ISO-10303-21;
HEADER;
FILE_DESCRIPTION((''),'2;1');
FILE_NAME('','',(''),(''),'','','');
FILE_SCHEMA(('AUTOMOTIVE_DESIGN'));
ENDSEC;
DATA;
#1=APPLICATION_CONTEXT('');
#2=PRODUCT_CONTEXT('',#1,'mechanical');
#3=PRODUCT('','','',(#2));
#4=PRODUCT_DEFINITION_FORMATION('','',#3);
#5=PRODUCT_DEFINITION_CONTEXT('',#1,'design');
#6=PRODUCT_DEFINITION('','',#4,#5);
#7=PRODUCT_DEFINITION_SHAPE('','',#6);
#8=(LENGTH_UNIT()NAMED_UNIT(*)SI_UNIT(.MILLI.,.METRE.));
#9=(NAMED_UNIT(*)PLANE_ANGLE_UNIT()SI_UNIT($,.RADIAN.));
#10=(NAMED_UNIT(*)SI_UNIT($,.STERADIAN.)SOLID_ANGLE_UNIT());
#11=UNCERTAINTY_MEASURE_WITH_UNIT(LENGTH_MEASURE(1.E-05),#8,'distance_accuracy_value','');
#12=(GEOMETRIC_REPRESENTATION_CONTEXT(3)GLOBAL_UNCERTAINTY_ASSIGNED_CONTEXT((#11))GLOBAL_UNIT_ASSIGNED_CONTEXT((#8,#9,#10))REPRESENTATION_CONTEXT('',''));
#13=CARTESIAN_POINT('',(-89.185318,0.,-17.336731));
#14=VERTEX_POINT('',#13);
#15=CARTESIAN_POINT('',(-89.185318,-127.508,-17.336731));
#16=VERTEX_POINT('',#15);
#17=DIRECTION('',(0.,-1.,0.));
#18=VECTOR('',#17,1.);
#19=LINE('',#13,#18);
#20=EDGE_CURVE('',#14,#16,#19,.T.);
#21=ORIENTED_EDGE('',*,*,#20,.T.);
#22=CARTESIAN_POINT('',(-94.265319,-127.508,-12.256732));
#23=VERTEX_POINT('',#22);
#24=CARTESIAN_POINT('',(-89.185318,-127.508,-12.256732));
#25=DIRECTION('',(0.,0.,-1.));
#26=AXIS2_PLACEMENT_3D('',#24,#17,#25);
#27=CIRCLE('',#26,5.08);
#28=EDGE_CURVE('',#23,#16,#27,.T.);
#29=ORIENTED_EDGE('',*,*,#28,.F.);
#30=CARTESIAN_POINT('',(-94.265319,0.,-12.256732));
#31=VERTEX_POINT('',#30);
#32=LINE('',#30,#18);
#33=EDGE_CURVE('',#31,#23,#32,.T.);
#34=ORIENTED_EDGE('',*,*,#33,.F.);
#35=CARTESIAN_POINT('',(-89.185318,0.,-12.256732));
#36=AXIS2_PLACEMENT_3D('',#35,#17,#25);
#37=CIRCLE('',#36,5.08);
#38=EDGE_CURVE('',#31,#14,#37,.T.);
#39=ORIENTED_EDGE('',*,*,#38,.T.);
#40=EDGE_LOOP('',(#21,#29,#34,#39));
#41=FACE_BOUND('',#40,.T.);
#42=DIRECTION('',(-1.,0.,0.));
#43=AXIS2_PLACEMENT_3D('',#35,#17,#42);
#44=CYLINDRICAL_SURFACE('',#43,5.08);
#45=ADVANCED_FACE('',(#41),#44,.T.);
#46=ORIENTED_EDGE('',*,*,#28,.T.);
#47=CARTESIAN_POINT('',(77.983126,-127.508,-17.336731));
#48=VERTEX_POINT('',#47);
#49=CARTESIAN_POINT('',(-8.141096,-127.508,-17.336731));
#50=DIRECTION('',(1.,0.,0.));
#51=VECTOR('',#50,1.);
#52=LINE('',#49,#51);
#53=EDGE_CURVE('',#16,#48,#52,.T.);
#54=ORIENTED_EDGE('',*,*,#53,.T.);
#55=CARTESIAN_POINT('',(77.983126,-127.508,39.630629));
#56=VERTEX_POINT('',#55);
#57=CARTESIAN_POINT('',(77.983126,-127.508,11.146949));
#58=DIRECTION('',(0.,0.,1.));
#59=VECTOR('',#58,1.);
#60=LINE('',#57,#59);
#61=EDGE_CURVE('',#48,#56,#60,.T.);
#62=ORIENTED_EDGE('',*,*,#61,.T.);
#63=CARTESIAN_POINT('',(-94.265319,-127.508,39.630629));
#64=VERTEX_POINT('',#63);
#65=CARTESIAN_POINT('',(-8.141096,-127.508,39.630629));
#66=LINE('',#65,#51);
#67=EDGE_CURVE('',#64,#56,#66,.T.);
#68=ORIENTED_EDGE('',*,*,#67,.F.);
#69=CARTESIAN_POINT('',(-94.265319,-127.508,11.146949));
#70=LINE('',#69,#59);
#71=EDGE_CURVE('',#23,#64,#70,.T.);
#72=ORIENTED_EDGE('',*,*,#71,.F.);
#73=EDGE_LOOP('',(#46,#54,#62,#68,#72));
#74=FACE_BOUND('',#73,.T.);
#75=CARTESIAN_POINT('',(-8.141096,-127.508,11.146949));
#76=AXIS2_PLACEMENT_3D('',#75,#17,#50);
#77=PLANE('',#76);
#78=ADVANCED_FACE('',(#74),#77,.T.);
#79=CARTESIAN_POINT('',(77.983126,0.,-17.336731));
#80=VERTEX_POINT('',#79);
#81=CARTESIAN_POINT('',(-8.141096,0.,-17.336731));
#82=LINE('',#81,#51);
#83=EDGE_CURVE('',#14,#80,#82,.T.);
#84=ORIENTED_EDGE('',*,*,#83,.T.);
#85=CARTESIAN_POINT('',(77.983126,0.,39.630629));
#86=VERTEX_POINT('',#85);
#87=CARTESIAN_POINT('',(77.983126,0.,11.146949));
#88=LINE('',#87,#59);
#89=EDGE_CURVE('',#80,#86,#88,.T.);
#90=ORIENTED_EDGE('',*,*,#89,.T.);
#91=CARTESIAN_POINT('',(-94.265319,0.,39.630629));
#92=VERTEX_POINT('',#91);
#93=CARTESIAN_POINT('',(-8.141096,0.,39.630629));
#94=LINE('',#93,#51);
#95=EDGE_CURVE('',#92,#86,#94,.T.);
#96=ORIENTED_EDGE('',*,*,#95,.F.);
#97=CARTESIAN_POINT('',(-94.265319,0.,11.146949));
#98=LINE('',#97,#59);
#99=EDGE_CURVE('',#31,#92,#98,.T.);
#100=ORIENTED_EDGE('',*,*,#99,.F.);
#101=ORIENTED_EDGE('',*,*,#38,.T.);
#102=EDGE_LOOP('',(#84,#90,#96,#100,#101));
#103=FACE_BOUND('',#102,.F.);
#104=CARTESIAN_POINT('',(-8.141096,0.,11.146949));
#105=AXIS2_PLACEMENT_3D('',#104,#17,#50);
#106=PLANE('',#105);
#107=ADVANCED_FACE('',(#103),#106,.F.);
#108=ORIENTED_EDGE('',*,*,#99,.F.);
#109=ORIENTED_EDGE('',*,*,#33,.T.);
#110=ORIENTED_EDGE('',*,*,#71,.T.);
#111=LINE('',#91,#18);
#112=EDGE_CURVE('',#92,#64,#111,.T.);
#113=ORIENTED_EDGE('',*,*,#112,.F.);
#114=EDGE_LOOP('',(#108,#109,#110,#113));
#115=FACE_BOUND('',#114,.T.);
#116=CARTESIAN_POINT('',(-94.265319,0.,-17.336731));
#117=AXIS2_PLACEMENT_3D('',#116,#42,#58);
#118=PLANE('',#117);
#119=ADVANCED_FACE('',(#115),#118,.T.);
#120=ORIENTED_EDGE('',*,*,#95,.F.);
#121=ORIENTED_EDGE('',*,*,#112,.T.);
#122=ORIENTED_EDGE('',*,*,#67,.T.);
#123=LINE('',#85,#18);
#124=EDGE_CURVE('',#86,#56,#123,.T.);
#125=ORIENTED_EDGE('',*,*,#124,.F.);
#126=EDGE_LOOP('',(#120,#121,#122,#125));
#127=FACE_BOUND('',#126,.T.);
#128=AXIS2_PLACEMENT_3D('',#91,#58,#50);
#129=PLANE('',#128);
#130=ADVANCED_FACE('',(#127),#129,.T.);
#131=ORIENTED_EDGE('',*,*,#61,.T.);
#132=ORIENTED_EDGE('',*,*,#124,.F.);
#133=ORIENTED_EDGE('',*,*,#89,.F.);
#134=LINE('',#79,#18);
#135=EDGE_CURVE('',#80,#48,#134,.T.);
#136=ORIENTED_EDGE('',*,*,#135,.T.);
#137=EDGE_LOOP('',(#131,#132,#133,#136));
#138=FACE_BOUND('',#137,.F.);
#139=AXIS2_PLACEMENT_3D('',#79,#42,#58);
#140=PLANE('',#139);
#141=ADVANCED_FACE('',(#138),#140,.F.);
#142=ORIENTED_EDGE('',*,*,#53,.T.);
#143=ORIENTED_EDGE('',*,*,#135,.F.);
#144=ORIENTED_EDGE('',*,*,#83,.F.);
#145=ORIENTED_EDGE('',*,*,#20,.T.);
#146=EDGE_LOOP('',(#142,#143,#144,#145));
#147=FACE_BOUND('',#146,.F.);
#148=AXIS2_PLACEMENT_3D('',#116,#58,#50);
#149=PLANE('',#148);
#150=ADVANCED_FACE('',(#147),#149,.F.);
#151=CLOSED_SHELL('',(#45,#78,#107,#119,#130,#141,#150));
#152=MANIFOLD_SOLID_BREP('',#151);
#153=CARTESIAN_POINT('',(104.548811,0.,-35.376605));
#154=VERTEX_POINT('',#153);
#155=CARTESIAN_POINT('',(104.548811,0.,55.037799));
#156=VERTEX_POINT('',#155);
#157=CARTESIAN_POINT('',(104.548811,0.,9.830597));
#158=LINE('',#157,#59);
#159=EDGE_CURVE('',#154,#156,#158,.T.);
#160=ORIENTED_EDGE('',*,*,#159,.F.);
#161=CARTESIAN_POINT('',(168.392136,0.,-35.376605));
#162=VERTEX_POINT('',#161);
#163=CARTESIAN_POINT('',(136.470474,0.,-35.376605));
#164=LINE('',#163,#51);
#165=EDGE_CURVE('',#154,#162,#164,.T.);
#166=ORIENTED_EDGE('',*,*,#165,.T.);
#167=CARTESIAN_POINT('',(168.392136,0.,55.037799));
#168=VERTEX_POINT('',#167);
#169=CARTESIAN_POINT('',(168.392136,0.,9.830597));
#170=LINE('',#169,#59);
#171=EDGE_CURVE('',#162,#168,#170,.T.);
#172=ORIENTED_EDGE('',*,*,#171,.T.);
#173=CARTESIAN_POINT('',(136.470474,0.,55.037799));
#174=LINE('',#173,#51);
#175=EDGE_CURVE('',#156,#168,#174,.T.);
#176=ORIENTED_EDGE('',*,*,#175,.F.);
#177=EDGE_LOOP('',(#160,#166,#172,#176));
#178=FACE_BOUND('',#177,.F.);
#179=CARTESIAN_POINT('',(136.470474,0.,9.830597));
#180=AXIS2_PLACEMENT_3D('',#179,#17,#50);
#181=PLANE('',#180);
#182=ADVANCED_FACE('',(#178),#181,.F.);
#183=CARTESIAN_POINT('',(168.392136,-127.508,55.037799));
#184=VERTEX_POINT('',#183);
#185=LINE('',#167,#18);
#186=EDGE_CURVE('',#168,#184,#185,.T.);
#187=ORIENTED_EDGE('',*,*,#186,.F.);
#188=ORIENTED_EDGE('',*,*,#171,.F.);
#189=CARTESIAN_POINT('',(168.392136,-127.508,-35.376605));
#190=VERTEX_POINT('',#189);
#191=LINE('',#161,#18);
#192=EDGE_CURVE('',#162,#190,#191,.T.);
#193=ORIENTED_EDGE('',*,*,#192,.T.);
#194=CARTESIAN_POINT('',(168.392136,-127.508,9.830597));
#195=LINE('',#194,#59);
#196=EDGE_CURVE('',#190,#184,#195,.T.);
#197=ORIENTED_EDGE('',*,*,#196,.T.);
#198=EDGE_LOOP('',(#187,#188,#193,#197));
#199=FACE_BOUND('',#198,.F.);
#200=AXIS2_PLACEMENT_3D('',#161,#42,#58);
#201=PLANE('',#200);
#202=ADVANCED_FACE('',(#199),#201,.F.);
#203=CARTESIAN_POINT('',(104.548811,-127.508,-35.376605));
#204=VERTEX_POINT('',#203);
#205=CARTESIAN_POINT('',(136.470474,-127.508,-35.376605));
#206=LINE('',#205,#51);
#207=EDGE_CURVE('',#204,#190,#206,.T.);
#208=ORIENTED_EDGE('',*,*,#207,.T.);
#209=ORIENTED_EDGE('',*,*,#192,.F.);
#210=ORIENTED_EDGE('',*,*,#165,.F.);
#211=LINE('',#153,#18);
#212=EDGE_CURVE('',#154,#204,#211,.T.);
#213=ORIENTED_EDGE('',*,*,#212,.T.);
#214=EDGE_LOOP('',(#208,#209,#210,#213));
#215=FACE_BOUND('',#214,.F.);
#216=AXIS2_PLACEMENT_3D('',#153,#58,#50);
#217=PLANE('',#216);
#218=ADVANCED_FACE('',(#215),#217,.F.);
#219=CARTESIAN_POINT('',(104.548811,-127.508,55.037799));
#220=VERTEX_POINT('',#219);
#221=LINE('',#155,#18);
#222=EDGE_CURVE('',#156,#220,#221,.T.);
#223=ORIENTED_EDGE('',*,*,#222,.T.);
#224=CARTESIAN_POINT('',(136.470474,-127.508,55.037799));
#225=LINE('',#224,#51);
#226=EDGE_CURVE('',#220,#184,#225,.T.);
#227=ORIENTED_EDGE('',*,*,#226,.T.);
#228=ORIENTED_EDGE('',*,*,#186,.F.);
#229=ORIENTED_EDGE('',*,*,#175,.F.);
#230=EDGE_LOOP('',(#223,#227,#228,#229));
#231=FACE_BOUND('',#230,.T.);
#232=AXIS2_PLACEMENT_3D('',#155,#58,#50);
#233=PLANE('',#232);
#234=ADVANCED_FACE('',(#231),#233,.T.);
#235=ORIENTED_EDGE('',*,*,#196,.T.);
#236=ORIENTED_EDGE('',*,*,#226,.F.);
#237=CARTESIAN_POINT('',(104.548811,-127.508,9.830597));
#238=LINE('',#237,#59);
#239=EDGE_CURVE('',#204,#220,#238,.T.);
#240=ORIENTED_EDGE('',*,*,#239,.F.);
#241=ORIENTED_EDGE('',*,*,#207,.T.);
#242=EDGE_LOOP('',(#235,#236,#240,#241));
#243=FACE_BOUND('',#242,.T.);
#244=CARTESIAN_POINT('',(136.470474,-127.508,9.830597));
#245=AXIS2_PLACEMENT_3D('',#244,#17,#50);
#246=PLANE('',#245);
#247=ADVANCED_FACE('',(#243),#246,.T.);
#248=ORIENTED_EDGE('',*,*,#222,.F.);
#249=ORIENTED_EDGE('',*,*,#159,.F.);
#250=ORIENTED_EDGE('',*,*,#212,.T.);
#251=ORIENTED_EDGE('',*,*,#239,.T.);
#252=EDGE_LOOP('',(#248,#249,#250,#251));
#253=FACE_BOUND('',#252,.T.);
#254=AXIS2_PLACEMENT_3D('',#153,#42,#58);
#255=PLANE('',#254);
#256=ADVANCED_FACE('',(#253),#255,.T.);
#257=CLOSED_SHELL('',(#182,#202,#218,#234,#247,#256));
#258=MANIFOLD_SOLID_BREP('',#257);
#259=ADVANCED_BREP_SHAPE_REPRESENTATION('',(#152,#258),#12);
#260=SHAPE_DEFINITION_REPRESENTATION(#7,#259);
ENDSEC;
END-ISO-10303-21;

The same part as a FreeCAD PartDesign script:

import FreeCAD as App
import Part
import Sketcher
from FreeCAD import Vector
Q = App.Units.Quantity


def edges_at(feature, points):
    """Names of the edges that pass closest to the given points."""
    edges = feature.Shape.Edges
    near = lambda p: min(range(len(edges)), key=lambda i: edges[i].distToShape(Part.Vertex(*p))[0])
    return sorted({f"Edge{near(p) + 1}" for p in points})

doc = App.newDocument("Part")
body = doc.addObject("PartDesign::Body", "Body")
body.AllowCompound = True

# Sketch on XZ plane
sketch1 = body.newObject("Sketcher::SketchObject", "Sketch")
sketch1.AttachmentSupport = (doc.getObject("XZ_Plane"), [""])
sketch1.MapMode = "FlatFace"
sketch1.addGeometry([
    Part.LineSegment(Vector(-94, 40, 0), Vector(-94, -17, 0)),  # 0
    Part.LineSegment(Vector(-94, -17, 0), Vector(78, -17, 0)),  # 1
    Part.LineSegment(Vector(78, -17, 0), Vector(78, 40, 0)),  # 2
    Part.LineSegment(Vector(78, 40, 0), Vector(-94, 40, 0)),  # 3
    Part.LineSegment(Vector(105, 55, 0), Vector(105, -35, 0)),  # 4
    Part.LineSegment(Vector(105, -35, 0), Vector(168, -35, 0)),  # 5
    Part.LineSegment(Vector(168, -35, 0), Vector(168, 55, 0)),  # 6
    Part.LineSegment(Vector(168, 55, 0), Vector(105, 55, 0)),  # 7
], False)
sketch1.addConstraint([
    Sketcher.Constraint("Coincident", 0, 2, 1, 1),
    Sketcher.Constraint("Coincident", 1, 2, 2, 1),
    Sketcher.Constraint("Coincident", 2, 2, 3, 1),
    Sketcher.Constraint("Coincident", 3, 2, 0, 1),
    Sketcher.Constraint("Coincident", 4, 2, 5, 1),
    Sketcher.Constraint("Coincident", 5, 2, 6, 1),
    Sketcher.Constraint("Coincident", 6, 2, 7, 1),
    Sketcher.Constraint("Coincident", 7, 2, 4, 1),
    Sketcher.Constraint("Vertical", 0),
    Sketcher.Constraint("Horizontal", 1),
    Sketcher.Constraint("Vertical", 2),
    Sketcher.Constraint("Horizontal", 3),
    Sketcher.Constraint("Vertical", 4),
    Sketcher.Constraint("Horizontal", 5),
    Sketcher.Constraint("Vertical", 6),
    Sketcher.Constraint("Horizontal", 7),
    Sketcher.Constraint("DistanceY", 0, 2, 0, 1, 56.967361),
    Sketcher.Constraint("DistanceY", -1, 1, 6, 2, 55.037799),
    Sketcher.Constraint("DistanceX", 1, 1, 1, 2, 172.248445),
    Sketcher.Constraint("DistanceX", 5, 1, 5, 2, 63.843325),
    Sketcher.Constraint("DistanceY", 4, 2, 4, 1, 90.414405),
    Sketcher.Constraint("DistanceX", 0, 2, -1, 1, 94.265319),
    Sketcher.Constraint("DistanceY", 0, 2, -1, 1, 17.336731),
    Sketcher.Constraint("DistanceX", -1, 1, 4, 2, 104.548811),
])
pad1 = body.newObject("PartDesign::Pad", "Pad")
pad1.Profile = sketch1
pad1.Length = Q("5.02 in")
doc.recompute()

fillet = body.newObject("PartDesign::Fillet", "Fillet")
fillet.Base = (pad1, edges_at(pad1, [(-94.265, -63.754, -17.337)]))
fillet.Radius = Q("0.2 in")

doc.recompute()
